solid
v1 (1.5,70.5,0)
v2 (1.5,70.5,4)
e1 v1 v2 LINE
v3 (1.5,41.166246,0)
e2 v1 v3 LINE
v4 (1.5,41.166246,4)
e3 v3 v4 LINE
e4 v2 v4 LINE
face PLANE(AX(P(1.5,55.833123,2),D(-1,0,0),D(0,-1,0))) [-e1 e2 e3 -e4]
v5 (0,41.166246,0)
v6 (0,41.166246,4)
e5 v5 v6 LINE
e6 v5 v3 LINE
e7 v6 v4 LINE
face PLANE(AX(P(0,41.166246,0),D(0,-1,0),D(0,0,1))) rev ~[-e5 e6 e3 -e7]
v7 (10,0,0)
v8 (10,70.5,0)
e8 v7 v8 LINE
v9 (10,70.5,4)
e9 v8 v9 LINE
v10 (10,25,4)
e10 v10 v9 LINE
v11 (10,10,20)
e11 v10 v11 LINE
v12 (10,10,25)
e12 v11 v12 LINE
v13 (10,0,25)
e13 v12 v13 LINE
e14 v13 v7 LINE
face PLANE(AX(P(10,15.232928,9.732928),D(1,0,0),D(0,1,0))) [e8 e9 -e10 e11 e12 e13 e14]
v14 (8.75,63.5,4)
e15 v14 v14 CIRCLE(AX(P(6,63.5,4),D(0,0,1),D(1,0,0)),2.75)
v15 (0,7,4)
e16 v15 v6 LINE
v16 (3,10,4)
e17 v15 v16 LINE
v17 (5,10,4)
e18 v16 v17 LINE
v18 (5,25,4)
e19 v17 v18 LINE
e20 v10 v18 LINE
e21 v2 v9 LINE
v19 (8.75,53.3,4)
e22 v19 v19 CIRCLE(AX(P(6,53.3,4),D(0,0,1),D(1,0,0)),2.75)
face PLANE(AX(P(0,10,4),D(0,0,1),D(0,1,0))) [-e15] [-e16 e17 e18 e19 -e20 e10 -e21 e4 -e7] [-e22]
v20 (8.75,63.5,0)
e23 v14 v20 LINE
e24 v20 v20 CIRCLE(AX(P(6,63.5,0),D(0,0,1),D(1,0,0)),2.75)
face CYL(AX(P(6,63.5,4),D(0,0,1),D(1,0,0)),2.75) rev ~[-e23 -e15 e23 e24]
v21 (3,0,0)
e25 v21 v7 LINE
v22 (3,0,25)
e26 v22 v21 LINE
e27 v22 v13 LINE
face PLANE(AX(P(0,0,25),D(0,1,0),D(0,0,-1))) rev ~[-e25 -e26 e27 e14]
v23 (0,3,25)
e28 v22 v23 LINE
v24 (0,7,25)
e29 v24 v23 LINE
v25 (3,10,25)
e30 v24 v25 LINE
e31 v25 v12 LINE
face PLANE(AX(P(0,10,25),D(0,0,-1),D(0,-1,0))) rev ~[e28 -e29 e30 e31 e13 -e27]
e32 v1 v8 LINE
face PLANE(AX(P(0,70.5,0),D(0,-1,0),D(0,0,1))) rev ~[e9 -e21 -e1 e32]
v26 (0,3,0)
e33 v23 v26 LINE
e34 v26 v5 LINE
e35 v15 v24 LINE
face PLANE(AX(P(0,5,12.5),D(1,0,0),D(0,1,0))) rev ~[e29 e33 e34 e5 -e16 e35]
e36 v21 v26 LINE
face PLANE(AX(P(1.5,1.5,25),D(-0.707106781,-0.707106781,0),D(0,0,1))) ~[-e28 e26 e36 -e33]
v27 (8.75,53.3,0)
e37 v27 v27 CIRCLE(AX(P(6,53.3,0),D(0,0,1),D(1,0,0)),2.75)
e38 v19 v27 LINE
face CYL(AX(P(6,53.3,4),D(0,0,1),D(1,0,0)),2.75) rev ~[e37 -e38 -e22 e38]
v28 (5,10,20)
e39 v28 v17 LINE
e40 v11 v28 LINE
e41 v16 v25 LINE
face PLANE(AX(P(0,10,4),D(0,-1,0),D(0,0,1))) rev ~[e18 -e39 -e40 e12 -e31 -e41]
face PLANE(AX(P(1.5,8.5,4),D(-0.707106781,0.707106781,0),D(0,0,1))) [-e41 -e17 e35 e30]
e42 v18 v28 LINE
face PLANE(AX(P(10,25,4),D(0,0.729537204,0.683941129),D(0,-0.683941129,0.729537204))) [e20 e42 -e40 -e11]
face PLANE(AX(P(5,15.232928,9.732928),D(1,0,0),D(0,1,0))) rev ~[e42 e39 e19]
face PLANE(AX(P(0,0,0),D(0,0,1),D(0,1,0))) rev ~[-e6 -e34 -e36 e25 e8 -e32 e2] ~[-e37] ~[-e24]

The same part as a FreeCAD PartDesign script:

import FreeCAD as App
import Part
import Sketcher
from FreeCAD import Vector


def edges_at(feature, points):
    """Names of the edges that pass closest to the given points."""
    edges = feature.Shape.Edges
    near = lambda p: min(range(len(edges)), key=lambda i: edges[i].distToShape(Part.Vertex(*p))[0])
    return sorted({f"Edge{near(p) + 1}" for p in points})

doc = App.newDocument("Part")
body = doc.addObject("PartDesign::Body", "Body")

# Sketch on YZ plane
sketch1 = body.newObject("Sketcher::SketchObject", "Sketch")
sketch1.AttachmentSupport = (doc.getObject("YZ_Plane"), [""])
sketch1.MapMode = "FlatFace"
sketch1.addGeometry([
    Part.LineSegment(Vector(0, 25, 0), Vector(0, 0, 0)),  # 0
    Part.LineSegment(Vector(0, 0, 0), Vector(70.5, 0, 0)),  # 1
    Part.LineSegment(Vector(70.5, 0, 0), Vector(70.5, 4, 0)),  # 2
    Part.LineSegment(Vector(70.5, 4, 0), Vector(10, 4, 0)),  # 3
    Part.LineSegment(Vector(10, 4, 0), Vector(10, 25, 0)),  # 4
    Part.LineSegment(Vector(10, 25, 0), Vector(0, 25, 0)),  # 5
], False)
sketch1.addConstraint([
    Sketcher.Constraint("Coincident", 0, 2, 1, 1),
    Sketcher.Constraint("Coincident", 1, 2, 2, 1),
    Sketcher.Constraint("Coincident", 2, 2, 3, 1),
    Sketcher.Constraint("Coincident", 3, 2, 4, 1),
    Sketcher.Constraint("Coincident", 4, 2, 5, 1),
    Sketcher.Constraint("Coincident", 5, 2, 0, 1),
    Sketcher.Constraint("Vertical", 0),
    Sketcher.Constraint("Horizontal", 1),
    Sketcher.Constraint("Vertical", 2),
    Sketcher.Constraint("Horizontal", 3),
    Sketcher.Constraint("Vertical", 4),
    Sketcher.Constraint("Horizontal", 5),
    Sketcher.Constraint("Coincident", 0, 2, -1, 1),
    Sketcher.Constraint("DistanceX", 5, 2, 5, 1, 10.0),
    Sketcher.Constraint("DistanceY", 0, 2, 0, 1, 25.0),
    Sketcher.Constraint("DistanceY", 2, 1, 2, 2, 4.0),
    Sketcher.Constraint("DistanceX", 1, 1, 1, 2, 70.5),
])
pad1 = body.newObject("PartDesign::Pad", "Pad")
pad1.Profile = sketch1
pad1.Length = 10

# Sketch on XY plane
sketch2 = body.newObject("Sketcher::SketchObject", "Sketch001")
sketch2.AttachmentSupport = (doc.getObject("XY_Plane"), [""])
sketch2.MapMode = "FlatFace"
sketch2.AttachmentOffset = App.Placement(Vector(0, 0, 4), App.Rotation())
sketch2.addGeometry([
    Part.Circle(Vector(6, 53.3, 0), Vector(0, 0, 1), 2.8),
    Part.Circle(Vector(6, 63.5, 0), Vector(0, 0, 1), 2.8),
], False)
sketch2.addConstraint([
    Sketcher.Constraint("Equal", 0, 1),
    Sketcher.Constraint("Vertical", 0, 3, 1, 3),
    Sketcher.Constraint("Diameter", 0, 5.5),
    Sketcher.Constraint("DistanceX", -1, 1, 0, 3, 6.0),
    Sketcher.Constraint("DistanceY", -1, 1, 0, 3, 53.3),
    Sketcher.Constraint("DistanceY", -1, 1, 1, 3, 63.5),
])
pocket1 = body.newObject("PartDesign::Pocket", "Pocket")
pocket1.Profile = sketch2
pocket1.Length = 31.7
doc.recompute()

chamfer = body.newObject("PartDesign::Chamfer", "Chamfer")
chamfer.Base = (pocket1, edges_at(pocket1, [(0, 0, 12.5), (0, 10, 14.5)]))
chamfer.Size = 3

# Sketch on YZ plane
sketch3 = body.newObject("Sketcher::SketchObject", "Sketch002")
sketch3.AttachmentSupport = (doc.getObject("YZ_Plane"), [""])
sketch3.MapMode = "FlatFace"
sketch3.addGeometry([
    Part.LineSegment(Vector(70.5, 4, 0), Vector(70.5, 0, 0)),
    Part.LineSegment(Vector(70.5, 0, 0), Vector(41.2, 0, 0)),
    Part.LineSegment(Vector(41.2, 0, 0), Vector(41.2, 4, 0)),
    Part.LineSegment(Vector(41.2, 4, 0), Vector(70.5, 4, 0)),
], False)
sketch3.addConstraint([
    Sketcher.Constraint("Coincident", 0, 2, 1, 1),
    Sketcher.Constraint("Coincident", 1, 2, 2, 1),
    Sketcher.Constraint("Coincident", 2, 2, 3, 1),
    Sketcher.Constraint("Coincident", 3, 2, 0, 1),
    Sketcher.Constraint("Vertical", 0),
    Sketcher.Constraint("Horizontal", 1),
    Sketcher.Constraint("Vertical", 2),
    Sketcher.Constraint("Horizontal", 3),
    Sketcher.Constraint("PointOnObject", 0, 2, -1),
    Sketcher.Constraint("DistanceY", 0, 2, 0, 1, 4.0),
    Sketcher.Constraint("DistanceX", -1, 1, 0, 2, 70.5),
    Sketcher.Constraint("DistanceX", 1, 2, 1, 1, 29.333754),
])
pocket2 = body.newObject("PartDesign::Pocket", "Pocket001")
pocket2.Profile = sketch3
pocket2.Length = 1.5
pocket2.Reversed = True

# Sketch on YZ plane
sketch4 = body.newObject("Sketcher::SketchObject", "Sketch003")
sketch4.AttachmentSupport = (doc.getObject("YZ_Plane"), [""])
sketch4.MapMode = "FlatFace"
sketch4.AttachmentOffset = App.Placement(Vector(0, 0, 10), App.Rotation())
sketch4.addGeometry([
    Part.LineSegment(Vector(25, 4, 0), Vector(10, 20, 0)),
    Part.LineSegment(Vector(10, 20, 0), Vector(10, 4, 0)),
    Part.LineSegment(Vector(10, 4, 0), Vector(25, 4, 0)),
], False)
sketch4.addConstraint([
    Sketcher.Constraint("Coincident", 0, 2, 1, 1),
    Sketcher.Constraint("Coincident", 1, 2, 2, 1),
    Sketcher.Constraint("Coincident", 2, 2, 0, 1),
    Sketcher.Constraint("Vertical", 1),
    Sketcher.Constraint("Horizontal", 2),
    Sketcher.Constraint("DistanceX", 2, 1, 2, 2, 15.0),
    Sketcher.Constraint("DistanceY", 1, 2, 1, 1, 16.0),
    Sketcher.Constraint("DistanceX", -1, 1, 0, 2, 10.0),
    Sketcher.Constraint("DistanceY", -1, 1, 0, 2, 20.0),
])
pad2 = body.newObject("PartDesign::Pad", "Pad001")
pad2.Profile = sketch4
pad2.Length = 5
pad2.Reversed = True

doc.recompute()
